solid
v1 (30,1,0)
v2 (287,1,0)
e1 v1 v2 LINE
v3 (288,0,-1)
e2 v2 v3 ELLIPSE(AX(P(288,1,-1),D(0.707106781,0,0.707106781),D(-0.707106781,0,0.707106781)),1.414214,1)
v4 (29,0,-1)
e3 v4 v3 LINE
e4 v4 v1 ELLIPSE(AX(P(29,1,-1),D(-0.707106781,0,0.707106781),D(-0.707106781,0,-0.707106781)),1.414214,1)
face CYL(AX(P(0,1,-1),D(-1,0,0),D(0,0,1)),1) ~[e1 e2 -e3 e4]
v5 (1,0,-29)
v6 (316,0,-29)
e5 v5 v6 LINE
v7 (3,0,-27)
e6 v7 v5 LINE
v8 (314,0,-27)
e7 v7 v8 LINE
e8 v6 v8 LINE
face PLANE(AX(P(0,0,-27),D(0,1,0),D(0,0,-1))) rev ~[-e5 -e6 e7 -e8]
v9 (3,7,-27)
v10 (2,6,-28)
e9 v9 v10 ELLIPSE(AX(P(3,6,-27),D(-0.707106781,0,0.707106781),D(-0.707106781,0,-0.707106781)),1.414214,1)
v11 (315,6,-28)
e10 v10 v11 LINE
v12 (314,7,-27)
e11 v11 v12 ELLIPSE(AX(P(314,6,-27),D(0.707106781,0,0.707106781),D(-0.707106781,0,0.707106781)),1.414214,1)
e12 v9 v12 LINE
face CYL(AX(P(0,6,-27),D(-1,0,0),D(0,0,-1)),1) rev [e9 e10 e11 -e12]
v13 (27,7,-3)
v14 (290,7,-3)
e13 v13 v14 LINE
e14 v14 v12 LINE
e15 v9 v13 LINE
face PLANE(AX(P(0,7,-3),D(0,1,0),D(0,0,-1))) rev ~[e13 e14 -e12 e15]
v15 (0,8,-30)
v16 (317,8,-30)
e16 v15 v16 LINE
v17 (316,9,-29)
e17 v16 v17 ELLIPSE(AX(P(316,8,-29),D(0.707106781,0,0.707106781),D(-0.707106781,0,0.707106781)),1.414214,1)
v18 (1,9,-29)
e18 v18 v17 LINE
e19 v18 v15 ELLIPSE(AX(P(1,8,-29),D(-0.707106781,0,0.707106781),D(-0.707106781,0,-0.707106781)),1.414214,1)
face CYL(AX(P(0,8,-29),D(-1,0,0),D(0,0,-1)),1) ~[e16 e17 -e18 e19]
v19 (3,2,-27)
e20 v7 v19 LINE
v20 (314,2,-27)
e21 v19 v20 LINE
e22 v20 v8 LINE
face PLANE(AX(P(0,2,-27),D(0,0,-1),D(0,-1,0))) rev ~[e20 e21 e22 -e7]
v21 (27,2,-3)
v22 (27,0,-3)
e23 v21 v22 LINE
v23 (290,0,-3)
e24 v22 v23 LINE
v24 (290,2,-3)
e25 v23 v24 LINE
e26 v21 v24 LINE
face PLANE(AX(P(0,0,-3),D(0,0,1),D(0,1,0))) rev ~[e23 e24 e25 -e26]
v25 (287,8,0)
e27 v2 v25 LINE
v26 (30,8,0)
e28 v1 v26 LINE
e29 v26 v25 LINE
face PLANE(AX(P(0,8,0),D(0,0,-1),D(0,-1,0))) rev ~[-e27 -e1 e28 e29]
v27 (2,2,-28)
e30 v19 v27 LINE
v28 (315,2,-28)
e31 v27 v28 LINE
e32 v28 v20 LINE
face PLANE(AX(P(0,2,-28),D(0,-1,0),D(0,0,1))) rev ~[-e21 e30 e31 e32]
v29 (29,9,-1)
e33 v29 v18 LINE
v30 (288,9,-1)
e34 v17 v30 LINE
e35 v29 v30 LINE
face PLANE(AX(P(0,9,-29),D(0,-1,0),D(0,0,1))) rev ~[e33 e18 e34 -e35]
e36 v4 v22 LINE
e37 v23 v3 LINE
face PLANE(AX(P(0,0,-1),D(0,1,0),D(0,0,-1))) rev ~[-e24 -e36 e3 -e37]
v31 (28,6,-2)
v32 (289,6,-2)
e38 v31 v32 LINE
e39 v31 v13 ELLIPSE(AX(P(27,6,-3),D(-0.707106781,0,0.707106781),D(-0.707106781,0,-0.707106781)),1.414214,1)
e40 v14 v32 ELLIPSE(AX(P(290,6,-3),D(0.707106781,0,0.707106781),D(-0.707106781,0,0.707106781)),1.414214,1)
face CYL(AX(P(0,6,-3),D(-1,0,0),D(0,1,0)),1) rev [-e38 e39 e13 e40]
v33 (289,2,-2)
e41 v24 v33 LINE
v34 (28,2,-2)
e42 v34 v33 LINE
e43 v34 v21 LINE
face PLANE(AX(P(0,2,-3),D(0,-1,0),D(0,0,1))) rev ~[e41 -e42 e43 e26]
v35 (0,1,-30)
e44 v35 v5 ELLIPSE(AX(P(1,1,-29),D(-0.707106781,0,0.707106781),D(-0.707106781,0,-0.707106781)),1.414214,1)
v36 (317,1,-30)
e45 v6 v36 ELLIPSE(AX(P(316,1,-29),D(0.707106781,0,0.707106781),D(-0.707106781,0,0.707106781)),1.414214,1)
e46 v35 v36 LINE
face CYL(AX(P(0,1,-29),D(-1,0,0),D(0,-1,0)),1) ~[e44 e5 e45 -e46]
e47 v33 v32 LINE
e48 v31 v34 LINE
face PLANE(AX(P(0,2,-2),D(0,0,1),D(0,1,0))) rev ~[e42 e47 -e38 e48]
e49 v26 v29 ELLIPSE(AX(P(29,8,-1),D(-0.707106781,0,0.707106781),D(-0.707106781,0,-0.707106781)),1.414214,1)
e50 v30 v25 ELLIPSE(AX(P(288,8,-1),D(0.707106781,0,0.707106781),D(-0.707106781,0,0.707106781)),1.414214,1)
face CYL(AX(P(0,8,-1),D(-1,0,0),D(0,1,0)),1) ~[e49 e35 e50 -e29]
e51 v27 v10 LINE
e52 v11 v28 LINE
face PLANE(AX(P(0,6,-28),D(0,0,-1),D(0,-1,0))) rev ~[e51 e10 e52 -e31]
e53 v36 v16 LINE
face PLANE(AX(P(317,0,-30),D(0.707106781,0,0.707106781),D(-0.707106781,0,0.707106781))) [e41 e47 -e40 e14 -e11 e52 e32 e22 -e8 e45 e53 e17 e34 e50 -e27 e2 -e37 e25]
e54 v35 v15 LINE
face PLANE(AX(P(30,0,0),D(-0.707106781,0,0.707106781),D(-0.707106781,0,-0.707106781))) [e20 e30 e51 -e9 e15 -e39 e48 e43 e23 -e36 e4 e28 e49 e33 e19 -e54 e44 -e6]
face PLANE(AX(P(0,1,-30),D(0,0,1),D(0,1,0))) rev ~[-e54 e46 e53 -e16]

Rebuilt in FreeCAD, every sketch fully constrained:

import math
import FreeCAD as App
import Part
import Sketcher
Q = App.Units.Quantity

doc = App.newDocument("Part")
body = doc.addObject("PartDesign::Body", "Body")

# Sketch on YZ plane
sketch1 = doc.addObject("Sketcher::SketchObject", "Sketch")
body.addObject(sketch1)
sketch1.AttachmentSupport = (doc.YZ_Plane, [""])
sketch1.MapMode = "FlatFace"
sketch1.addGeometry(Part.ArcOfCircle(Part.Circle(App.Vector(1, -1, 0), App.Vector(0, 0, 1), 1), math.radians(90), math.radians(180)), False)
sketch1.addGeometry(Part.LineSegment(App.Vector(0, -1, 0), App.Vector(0, -3, 0)), False)
sketch1.addGeometry(Part.LineSegment(App.Vector(0, -3, 0), App.Vector(2, -3, 0)), False)
sketch1.addGeometry(Part.LineSegment(App.Vector(2, -3, 0), App.Vector(2, -2, 0)), False)
sketch1.addGeometry(Part.LineSegment(App.Vector(2, -2, 0), App.Vector(6, -2, 0)), False)
sketch1.addGeometry(Part.ArcOfCircle(Part.Circle(App.Vector(6, -3, 0), App.Vector(0, 0, 1), 1), math.radians(0), math.radians(90)), False)
sketch1.addGeometry(Part.LineSegment(App.Vector(7, -3, 0), App.Vector(7, -27, 0)), False)
sketch1.addGeometry(Part.ArcOfCircle(Part.Circle(App.Vector(6, -27, 0), App.Vector(0, 0, 1), 1), math.radians(-90), math.radians(0)), False)
sketch1.addGeometry(Part.LineSegment(App.Vector(6, -28, 0), App.Vector(2, -28, 0)), False)
sketch1.addGeometry(Part.LineSegment(App.Vector(2, -28, 0), App.Vector(2, -27, 0)), False)
sketch1.addGeometry(Part.LineSegment(App.Vector(2, -27, 0), App.Vector(0, -27, 0)), False)
sketch1.addGeometry(Part.LineSegment(App.Vector(0, -27, 0), App.Vector(0, -29, 0)), False)
sketch1.addGeometry(Part.ArcOfCircle(Part.Circle(App.Vector(1, -29, 0), App.Vector(0, 0, 1), 1), math.radians(180), math.radians(270)), False)
sketch1.addGeometry(Part.LineSegment(App.Vector(1, -30, 0), App.Vector(8, -30, 0)), False)
sketch1.addGeometry(Part.ArcOfCircle(Part.Circle(App.Vector(8, -29, 0), App.Vector(0, 0, 1), 1), math.radians(-90), math.radians(0)), False)
sketch1.addGeometry(Part.LineSegment(App.Vector(9, -29, 0), App.Vector(9, -1, 0)), False)
sketch1.addGeometry(Part.ArcOfCircle(Part.Circle(App.Vector(8, -1, 0), App.Vector(0, 0, 1), 1), math.radians(0), math.radians(90)), False)
sketch1.addGeometry(Part.LineSegment(App.Vector(8, 0, 0), App.Vector(1, 0, 0)), False)
sketch1.addConstraint(Sketcher.Constraint("Tangent", 0, 2, 1, 1))
sketch1.addConstraint(Sketcher.Constraint("Coincident", 1, 2, 2, 1))
sketch1.addConstraint(Sketcher.Constraint("Coincident", 2, 2, 3, 1))
sketch1.addConstraint(Sketcher.Constraint("Coincident", 3, 2, 4, 1))
sketch1.addConstraint(Sketcher.Constraint("Tangent", 4, 2, 5, 2))
sketch1.addConstraint(Sketcher.Constraint("Tangent", 5, 1, 6, 1))
sketch1.addConstraint(Sketcher.Constraint("Tangent", 6, 2, 7, 2))
sketch1.addConstraint(Sketcher.Constraint("Tangent", 7, 1, 8, 1))
sketch1.addConstraint(Sketcher.Constraint("Coincident", 8, 2, 9, 1))
sketch1.addConstraint(Sketcher.Constraint("Coincident", 9, 2, 10, 1))
sketch1.addConstraint(Sketcher.Constraint("Coincident", 10, 2, 11, 1))
sketch1.addConstraint(Sketcher.Constraint("Tangent", 11, 2, 12, 1))
sketch1.addConstraint(Sketcher.Constraint("Tangent", 12, 2, 13, 1))
sketch1.addConstraint(Sketcher.Constraint("Tangent", 13, 2, 14, 1))
sketch1.addConstraint(Sketcher.Constraint("Tangent", 14, 2, 15, 1))
sketch1.addConstraint(Sketcher.Constraint("Tangent", 15, 2, 16, 1))
sketch1.addConstraint(Sketcher.Constraint("Tangent", 16, 2, 17, 1))
sketch1.addConstraint(Sketcher.Constraint("Tangent", 17, 2, 0, 1))
sketch1.addConstraint(Sketcher.Constraint("Vertical", 1))
sketch1.addConstraint(Sketcher.Constraint("Horizontal", 2))
sketch1.addConstraint(Sketcher.Constraint("Vertical", 3))
sketch1.addConstraint(Sketcher.Constraint("Horizontal", 4))
sketch1.addConstraint(Sketcher.Constraint("Vertical", 6))
sketch1.addConstraint(Sketcher.Constraint("Horizontal", 8))
sketch1.addConstraint(Sketcher.Constraint("Vertical", 9))
sketch1.addConstraint(Sketcher.Constraint("Horizontal", 10))
sketch1.addConstraint(Sketcher.Constraint("Vertical", 11))
sketch1.addConstraint(Sketcher.Constraint("Horizontal", 13))
sketch1.addConstraint(Sketcher.Constraint("Vertical", 15))
sketch1.addConstraint(Sketcher.Constraint("Horizontal", 17))
sketch1.addConstraint(Sketcher.Constraint("Equal", 0, 5))
sketch1.addConstraint(Sketcher.Constraint("Equal", 5, 7))
sketch1.addConstraint(Sketcher.Constraint("Equal", 7, 12))
sketch1.addConstraint(Sketcher.Constraint("Equal", 12, 14))
sketch1.addConstraint(Sketcher.Constraint("Equal", 14, 16))
sketch1.addConstraint(Sketcher.Constraint("PointOnObject", 0, 2, -2))
sketch1.addConstraint(Sketcher.Constraint("PointOnObject", 10, 2, -2))
sketch1.addConstraint(Sketcher.Constraint("PointOnObject", 16, 2, -1))
sketch1.addConstraint(Sketcher.Constraint("Horizontal", 5, 3, 1, 2))
sketch1.addConstraint(Sketcher.Constraint("Horizontal", 6, 2, 9, 2))
sketch1.addConstraint(Sketcher.Constraint("Vertical", 3, 2, 8, 2))
sketch1.addConstraint(Sketcher.Constraint("Equal", 10, 1))
sketch1.addConstraint(Sketcher.Constraint("Equal", 1, 11))
sketch1.addConstraint(Sketcher.Constraint("Radius", 0, Q("1 mm")))
sketch1.addConstraint(Sketcher.Constraint("DistanceX", 2, 1, 2, 2, Q("2 mm")))
sketch1.addConstraint(Sketcher.Constraint("DistanceX", 4, 1, 4, 2, Q("4 mm")))
sketch1.addConstraint(Sketcher.Constraint("DistanceX", 13, 1, 13, 2, Q("7 mm")))
sketch1.addConstraint(Sketcher.Constraint("DistanceY", 6, 2, 6, 1, Q("24 mm")))
pad1 = doc.addObject("PartDesign::Pad", "Pad")
body.addObject(pad1)
pad1.Profile = sketch1
pad1.Length = 317

# Sketch on XZ plane
sketch2 = doc.addObject("Sketcher::SketchObject", "Sketch001")
body.addObject(sketch2)
sketch2.AttachmentSupport = (doc.XZ_Plane, [""])
sketch2.MapMode = "FlatFace"
sketch2.addGeometry(Part.LineSegment(App.Vector(0, -30, 0), App.Vector(0, 0, 0)), False)
sketch2.addGeometry(Part.LineSegment(App.Vector(0, 0, 0), App.Vector(30, 0, 0)), False)
sketch2.addGeometry(Part.LineSegment(App.Vector(30, 0, 0), App.Vector(0, -30, 0)), False)
sketch2.addGeometry(Part.LineSegment(App.Vector(317, -30, 0), App.Vector(287, 0, 0)), False)
sketch2.addGeometry(Part.LineSegment(App.Vector(287, 0, 0), App.Vector(317, 0, 0)), False)
sketch2.addGeometry(Part.LineSegment(App.Vector(317, 0, 0), App.Vector(317, -30, 0)), False)
sketch2.addConstraint(Sketcher.Constraint("Coincident", 0, 2, 1, 1))
sketch2.addConstraint(Sketcher.Constraint("Coincident", 1, 2, 2, 1))
sketch2.addConstraint(Sketcher.Constraint("Coincident", 2, 2, 0, 1))
sketch2.addConstraint(Sketcher.Constraint("Coincident", 3, 2, 4, 1))
sketch2.addConstraint(Sketcher.Constraint("Coincident", 4, 2, 5, 1))
sketch2.addConstraint(Sketcher.Constraint("Coincident", 5, 2, 3, 1))
sketch2.addConstraint(Sketcher.Constraint("Vertical", 0))
sketch2.addConstraint(Sketcher.Constraint("Horizontal", 1))
sketch2.addConstraint(Sketcher.Constraint("Horizontal", 4))
sketch2.addConstraint(Sketcher.Constraint("Vertical", 5))
sketch2.addConstraint(Sketcher.Constraint("Coincident", 0, 2, -1, 1))
sketch2.addConstraint(Sketcher.Constraint("PointOnObject", 3, 2, -1))
sketch2.addConstraint(Sketcher.Constraint("Perpendicular", 2, 3))
sketch2.addConstraint(Sketcher.Constraint("Horizontal", 2, 2, 5, 2))
sketch2.addConstraint(Sketcher.Constraint("Equal", 1, 4))
sketch2.addConstraint(Sketcher.Constraint("DistanceX", 1, 1, 1, 2, Q("30 mm")))
sketch2.addConstraint(Sketcher.Constraint("DistanceX", -1, 1, 3, 2, Q("287 mm")))
pocket1 = doc.addObject("PartDesign::Pocket", "Pocket")
body.addObject(pocket1)
pocket1.Profile = sketch2
pocket1.Length = 10

doc.recompute()
